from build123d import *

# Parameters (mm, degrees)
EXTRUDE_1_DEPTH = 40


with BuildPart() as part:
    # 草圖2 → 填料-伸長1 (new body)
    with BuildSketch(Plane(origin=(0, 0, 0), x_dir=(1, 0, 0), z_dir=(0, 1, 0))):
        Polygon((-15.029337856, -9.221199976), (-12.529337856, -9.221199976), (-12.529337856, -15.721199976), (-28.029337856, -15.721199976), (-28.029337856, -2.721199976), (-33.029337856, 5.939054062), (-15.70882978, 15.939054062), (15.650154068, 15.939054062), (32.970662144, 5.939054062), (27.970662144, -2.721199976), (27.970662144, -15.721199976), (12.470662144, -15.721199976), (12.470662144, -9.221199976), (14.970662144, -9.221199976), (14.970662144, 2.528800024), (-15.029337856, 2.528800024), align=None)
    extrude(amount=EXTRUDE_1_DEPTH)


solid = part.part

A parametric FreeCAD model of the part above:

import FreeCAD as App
import Part
import Sketcher
from FreeCAD import Vector
Q = App.Units.Quantity


def add_polygon(sketch, points):
    """Adds a closed chain of lines whose ends are joined by coincident constraints."""
    first, n = sketch.GeometryCount, len(points)
    for a, b in zip(points, points[1:] + points[:1]):
        sketch.addGeometry(Part.LineSegment(App.Vector(*a, 0), App.Vector(*b, 0)), False)
    for i in range(n):
        sketch.addConstraint(Sketcher.Constraint("Coincident", first + i, 2, first + (i + 1) % n, 1))

doc = App.newDocument("Part")
body = doc.addObject("PartDesign::Body", "Body")

# Sketch on XZ plane
sketch1 = body.newObject("Sketcher::SketchObject", "Sketch")
sketch1.AttachmentSupport = (doc.getObject("XZ_Plane"), [""])
sketch1.MapMode = "FlatFace"
add_polygon(sketch1, [(-12.5, 9.2), (-15, 9.2), (-15, -2.5), (15, -2.5), (15, 9.2), (12.5, 9.2), (12.5, 15.7), (28, 15.7), (28, 2.7), (33, -5.9), (15.7, -15.9), (-15.7, -15.9), (-33, -5.9), (-28, 2.7), (-28, 15.7), (-12.5, 15.7)])  # lines 0-15
sketch1.addConstraint([
    Sketcher.Constraint("Horizontal", 0),
    Sketcher.Constraint("Vertical", 1),
    Sketcher.Constraint("Horizontal", 2),
    Sketcher.Constraint("Vertical", 3),
    Sketcher.Constraint("Horizontal", 4),
    Sketcher.Constraint("Vertical", 5),
    Sketcher.Constraint("Horizontal", 6),
    Sketcher.Constraint("Vertical", 7),
    Sketcher.Constraint("Horizontal", 10),
    Sketcher.Constraint("Vertical", 13),
    Sketcher.Constraint("Horizontal", 14),
    Sketcher.Constraint("Vertical", 15),
    Sketcher.Constraint("Perpendicular", 8, 9),
    Sketcher.Constraint("Perpendicular", 11, 12),
    Sketcher.Constraint("Horizontal", 0, 2, 3, 2),
    Sketcher.Constraint("Horizontal", 8, 2, 11, 2),
    Sketcher.Constraint("Horizontal", 7, 2, 12, 2),
    Sketcher.Constraint("Horizontal", 6, 2, 13, 2),
    Sketcher.Constraint("Equal", 0, 4),
    Sketcher.Constraint("Equal", 6, 14),
    Sketcher.Constraint("Equal", 9, 11),
    Sketcher.Constraint("DistanceX", 2, 1, 2, 2, Q("30 mm")),
    Sketcher.Constraint("DistanceY", 7, 2, 7, 1, Q("13 mm")),
    Sketcher.Constraint("Angle", 8, Q("-60 deg")),
    Sketcher.Constraint("Distance", 8, Q("10 mm")),
    Sketcher.Constraint("Distance", 9, Q("20 mm")),
    Sketcher.Constraint("DistanceX", 0, 2, 0, 1, Q("2.5 mm")),
    Sketcher.Constraint("DistanceX", 6, 1, 6, 2, Q("15.5 mm")),
    Sketcher.Constraint("DistanceY", 5, 1, 5, 2, Q("6.5 mm")),
    Sketcher.Constraint("DistanceY", 1, 2, 1, 1, Q("11.75 mm")),
    Sketcher.Constraint("DistanceY", -1, 1, 0, 2, Q("9.2212 mm")),
    Sketcher.Constraint("DistanceX", 10, 2, -1, 1, Q("15.70883 mm")),
])
pad1 = body.newObject("PartDesign::Pad", "Pad")
pad1.Profile = sketch1
pad1.Length = 40
pad1.Reversed = True

doc.recompute()
